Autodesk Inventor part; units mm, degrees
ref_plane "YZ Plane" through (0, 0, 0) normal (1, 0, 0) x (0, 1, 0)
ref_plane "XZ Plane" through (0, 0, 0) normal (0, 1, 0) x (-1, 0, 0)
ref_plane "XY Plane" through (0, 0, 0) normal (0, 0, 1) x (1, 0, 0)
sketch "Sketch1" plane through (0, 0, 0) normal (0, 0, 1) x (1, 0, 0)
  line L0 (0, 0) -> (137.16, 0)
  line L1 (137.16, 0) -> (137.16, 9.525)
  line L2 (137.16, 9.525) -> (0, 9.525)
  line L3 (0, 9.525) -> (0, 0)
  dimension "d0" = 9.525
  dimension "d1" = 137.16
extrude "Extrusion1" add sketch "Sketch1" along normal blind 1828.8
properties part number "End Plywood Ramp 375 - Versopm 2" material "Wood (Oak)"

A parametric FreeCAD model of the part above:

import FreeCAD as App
import Part
import Sketcher

V = App.Vector
Q = App.Units.Quantity

doc = App.newDocument("Part")
body = doc.addObject("PartDesign::Body", "Body")

# Sketch on XY plane
sketch1 = body.newObject("Sketcher::SketchObject", "Sketch")
sketch1.AttachmentSupport = (doc.getObject("XY_Plane"), [""])
sketch1.MapMode = "FlatFace"
sketch1.addGeometry([
    Part.LineSegment(V(0, 10, 0), V(0, 0, 0)),
    Part.LineSegment(V(0, 0, 0), V(137, 0, 0)),
    Part.LineSegment(V(137, 0, 0), V(137, 10, 0)),
    Part.LineSegment(V(137, 10, 0), V(0, 10, 0)),
], False)
sketch1.addConstraint([
    Sketcher.Constraint("Coincident", 0, 2, 1, 1),
    Sketcher.Constraint("Coincident", 1, 2, 2, 1),
    Sketcher.Constraint("Coincident", 2, 2, 3, 1),
    Sketcher.Constraint("Coincident", 3, 2, 0, 1),
    Sketcher.Constraint("Vertical", 0),
    Sketcher.Constraint("Horizontal", 1),
    Sketcher.Constraint("Vertical", 2),
    Sketcher.Constraint("Horizontal", 3),
    Sketcher.Constraint("Coincident", 0, 2, -1, 1),
    Sketcher.Constraint("DistanceX", 1, 1, 1, 2, Q("5.4 in")),
    Sketcher.Constraint("DistanceY", 0, 2, 0, 1, Q("0.375 in")),
])
pad1 = body.newObject("PartDesign::Pad", "Pad")
pad1.Profile = sketch1
pad1.Length = Q("72 in")

doc.recompute()
